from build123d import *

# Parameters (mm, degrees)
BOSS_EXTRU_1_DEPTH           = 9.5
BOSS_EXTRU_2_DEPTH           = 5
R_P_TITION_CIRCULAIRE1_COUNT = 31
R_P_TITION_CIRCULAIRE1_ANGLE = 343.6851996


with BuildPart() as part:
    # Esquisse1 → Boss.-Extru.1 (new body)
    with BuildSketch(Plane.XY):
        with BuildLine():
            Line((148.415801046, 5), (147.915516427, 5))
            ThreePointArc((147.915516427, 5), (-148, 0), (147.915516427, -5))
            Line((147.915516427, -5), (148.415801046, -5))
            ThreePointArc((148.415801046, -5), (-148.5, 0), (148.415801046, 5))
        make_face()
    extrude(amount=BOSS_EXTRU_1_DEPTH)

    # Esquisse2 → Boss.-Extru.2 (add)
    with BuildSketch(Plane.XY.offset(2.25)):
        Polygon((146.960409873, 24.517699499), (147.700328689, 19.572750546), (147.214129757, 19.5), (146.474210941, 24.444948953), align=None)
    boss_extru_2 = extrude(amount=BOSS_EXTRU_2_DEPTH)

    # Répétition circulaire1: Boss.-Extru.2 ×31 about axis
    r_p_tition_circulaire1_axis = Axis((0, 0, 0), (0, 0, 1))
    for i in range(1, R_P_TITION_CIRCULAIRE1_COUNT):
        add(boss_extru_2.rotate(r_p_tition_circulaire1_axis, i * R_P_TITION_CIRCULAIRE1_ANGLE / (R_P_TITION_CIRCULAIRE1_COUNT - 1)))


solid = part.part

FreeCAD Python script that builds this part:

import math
import FreeCAD as App
import Part
import Sketcher

doc = App.newDocument("Part")
body = doc.addObject("PartDesign::Body", "Body")

# Sketch on XY plane
sketch1 = body.newObject("Sketcher::SketchObject", "Sketch")
sketch1.AttachmentSupport = (doc.getObject("XY_Plane"), [""])
sketch1.MapMode = "FlatFace"
sketch1.addGeometry([
    Part.LineSegment(App.Vector(147.9, 5, 0), App.Vector(148.4, 5, 0)),
    Part.ArcOfCircle(Part.Circle(App.Vector(0, 0, 0), App.Vector(0, 0, 1), 148.5), math.radians(2), math.radians(358)),
    Part.LineSegment(App.Vector(148.4, -5, 0), App.Vector(147.9, -5, 0)),
    Part.ArcOfCircle(Part.Circle(App.Vector(0, 0, 0), App.Vector(0, 0, 1), 148), math.radians(2), math.radians(358)),
], False)
sketch1.addConstraint([
    Sketcher.Constraint("Coincident", 0, 2, 1, 1),
    Sketcher.Constraint("Coincident", 1, 2, 2, 1),
    Sketcher.Constraint("Coincident", 2, 2, 3, 2),
    Sketcher.Constraint("Coincident", 3, 1, 0, 1),
    Sketcher.Constraint("Horizontal", 0),
    Sketcher.Constraint("Horizontal", 2),
    Sketcher.Constraint("Coincident", 1, 3, -1, 1),
    Sketcher.Constraint("Coincident", 3, 3, -1, 1),
    Sketcher.Constraint("Vertical", 0, 2, 1, 2),
    Sketcher.Constraint("Radius", 3, 148.0),
    Sketcher.Constraint("Radius", 1, 148.5),
    Sketcher.Constraint("DistanceY", -1, 1, 0, 2, 5.0),
])
pad1 = body.newObject("PartDesign::Pad", "Pad")
pad1.Profile = sketch1
pad1.Length = 9.5

# Sketch on XY plane
sketch2 = body.newObject("Sketcher::SketchObject", "Sketch001")
sketch2.AttachmentSupport = (doc.getObject("XY_Plane"), [""])
sketch2.MapMode = "FlatFace"
sketch2.AttachmentOffset = App.Placement(App.Vector(0, 0, 2.25), App.Rotation())
sketch2.addGeometry([
    Part.LineSegment(App.Vector(147.7, 19.57, 0), App.Vector(146.96, 24.52, 0)),
    Part.LineSegment(App.Vector(146.96, 24.52, 0), App.Vector(146.47, 24.44, 0)),
    Part.LineSegment(App.Vector(146.47, 24.44, 0), App.Vector(147.21, 19.5, 0)),
    Part.LineSegment(App.Vector(147.21, 19.5, 0), App.Vector(147.7, 19.57, 0)),
], False)
sketch2.addConstraint([
    Sketcher.Constraint("Coincident", 0, 2, 1, 1),
    Sketcher.Constraint("Coincident", 1, 2, 2, 1),
    Sketcher.Constraint("Coincident", 2, 2, 3, 1),
    Sketcher.Constraint("Coincident", 3, 2, 0, 1),
    Sketcher.Constraint("Perpendicular", 0, 1),
    Sketcher.Constraint("Perpendicular", 1, 2),
    Sketcher.Constraint("Perpendicular", 2, 3),
    Sketcher.Constraint("Distance", 0, 5.0),
    Sketcher.Constraint("DistanceY", -1, 1, 2, 2, 19.5),
    Sketcher.Constraint("DistanceY", -1, 1, 0, 2, 24.517699),
    Sketcher.Constraint("DistanceX", 1, 2, 0, 2, 0.486199),
    Sketcher.Constraint("DistanceX", -1, 1, 0, 2, 146.96041),
])
pad2 = body.newObject("PartDesign::Pad", "Pad001")
pad2.Profile = sketch2
pad2.Length = 5
doc.recompute()

polarpattern = body.newObject("PartDesign::PolarPattern", "PolarPattern")
polarpattern.Originals = [pad2]
polarpattern.Axis = (doc.getObject("Z_Axis"), [""])
polarpattern.Angle = 343.6852
polarpattern.Occurrences = 31
body.Tip = polarpattern

doc.recompute()
